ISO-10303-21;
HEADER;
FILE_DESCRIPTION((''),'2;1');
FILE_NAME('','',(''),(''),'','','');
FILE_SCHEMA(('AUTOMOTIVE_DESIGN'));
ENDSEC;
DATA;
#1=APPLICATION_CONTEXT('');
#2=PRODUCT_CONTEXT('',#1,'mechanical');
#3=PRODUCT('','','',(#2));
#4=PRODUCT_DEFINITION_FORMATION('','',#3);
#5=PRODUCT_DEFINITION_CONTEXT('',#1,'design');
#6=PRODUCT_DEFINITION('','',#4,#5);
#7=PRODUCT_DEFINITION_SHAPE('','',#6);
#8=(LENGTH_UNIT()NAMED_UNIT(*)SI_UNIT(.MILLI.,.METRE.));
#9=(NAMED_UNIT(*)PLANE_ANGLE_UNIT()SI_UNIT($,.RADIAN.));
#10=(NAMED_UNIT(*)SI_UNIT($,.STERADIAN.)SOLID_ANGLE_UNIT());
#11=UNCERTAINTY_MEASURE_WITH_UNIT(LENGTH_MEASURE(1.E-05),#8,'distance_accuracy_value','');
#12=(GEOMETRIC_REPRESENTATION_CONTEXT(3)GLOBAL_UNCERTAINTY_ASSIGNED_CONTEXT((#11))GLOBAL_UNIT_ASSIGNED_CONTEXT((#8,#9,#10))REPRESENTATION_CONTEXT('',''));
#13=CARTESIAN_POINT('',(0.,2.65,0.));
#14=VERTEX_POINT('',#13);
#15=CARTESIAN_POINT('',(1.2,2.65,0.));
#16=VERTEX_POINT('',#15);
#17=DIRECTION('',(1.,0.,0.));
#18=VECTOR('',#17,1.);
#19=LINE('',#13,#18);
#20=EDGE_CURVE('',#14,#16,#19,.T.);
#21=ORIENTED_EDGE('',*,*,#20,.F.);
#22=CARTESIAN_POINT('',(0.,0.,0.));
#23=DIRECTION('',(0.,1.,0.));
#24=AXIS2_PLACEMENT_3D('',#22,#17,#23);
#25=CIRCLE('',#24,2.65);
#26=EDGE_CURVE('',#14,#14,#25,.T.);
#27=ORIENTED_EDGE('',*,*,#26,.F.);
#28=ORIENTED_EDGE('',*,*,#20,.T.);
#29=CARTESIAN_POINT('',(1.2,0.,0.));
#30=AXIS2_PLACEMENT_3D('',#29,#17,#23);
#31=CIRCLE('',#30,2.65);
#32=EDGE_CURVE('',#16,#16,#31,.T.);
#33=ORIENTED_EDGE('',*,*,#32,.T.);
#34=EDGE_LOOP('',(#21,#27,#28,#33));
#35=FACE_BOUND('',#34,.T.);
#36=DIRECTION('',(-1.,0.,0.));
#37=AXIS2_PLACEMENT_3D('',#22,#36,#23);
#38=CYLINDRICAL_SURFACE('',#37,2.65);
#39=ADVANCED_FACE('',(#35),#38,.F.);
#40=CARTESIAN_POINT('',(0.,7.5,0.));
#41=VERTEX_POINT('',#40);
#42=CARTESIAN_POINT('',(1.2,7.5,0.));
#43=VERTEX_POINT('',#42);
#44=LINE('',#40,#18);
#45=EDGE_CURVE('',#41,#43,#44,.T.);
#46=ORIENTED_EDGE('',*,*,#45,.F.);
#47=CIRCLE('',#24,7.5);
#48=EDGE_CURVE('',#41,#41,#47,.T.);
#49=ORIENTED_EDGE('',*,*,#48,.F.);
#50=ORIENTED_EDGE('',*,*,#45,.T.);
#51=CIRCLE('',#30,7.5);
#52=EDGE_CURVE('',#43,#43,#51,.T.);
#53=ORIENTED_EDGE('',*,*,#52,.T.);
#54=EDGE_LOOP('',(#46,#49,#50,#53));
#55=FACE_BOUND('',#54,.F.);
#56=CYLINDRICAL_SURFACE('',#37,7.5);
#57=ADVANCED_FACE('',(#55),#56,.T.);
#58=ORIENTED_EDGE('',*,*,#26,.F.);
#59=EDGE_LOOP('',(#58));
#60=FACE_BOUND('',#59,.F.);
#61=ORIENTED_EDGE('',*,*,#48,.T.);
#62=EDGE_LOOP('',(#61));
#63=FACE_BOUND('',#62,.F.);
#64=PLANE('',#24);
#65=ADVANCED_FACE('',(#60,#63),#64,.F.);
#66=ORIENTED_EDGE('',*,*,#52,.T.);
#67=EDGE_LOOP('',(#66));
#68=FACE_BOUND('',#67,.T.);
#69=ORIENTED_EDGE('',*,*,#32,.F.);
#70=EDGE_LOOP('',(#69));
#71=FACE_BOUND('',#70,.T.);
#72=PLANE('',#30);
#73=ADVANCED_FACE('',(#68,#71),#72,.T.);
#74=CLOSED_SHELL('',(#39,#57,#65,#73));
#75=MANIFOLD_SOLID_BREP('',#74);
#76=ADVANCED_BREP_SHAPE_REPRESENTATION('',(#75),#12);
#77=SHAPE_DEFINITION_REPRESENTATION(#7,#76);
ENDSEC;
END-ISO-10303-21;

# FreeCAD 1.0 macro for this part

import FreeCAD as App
import Part
import Sketcher

V = App.Vector
Q = App.Units.Quantity

doc = App.newDocument("Part")
body = doc.addObject("PartDesign::Body", "Body")

sketch1 = doc.addObject("Sketcher::SketchObject", "Sketch")
body.addObject(sketch1)
sketch1.AttachmentSupport = (doc.YZ_Plane, [""])
sketch1.MapMode = "FlatFace"
sketch1.addGeometry(Part.Circle(V(0, 0, 0), V(0, 0, 1), 7.5), False)
sketch1.addGeometry(Part.Circle(V(0, 0, 0), V(0, 0, 1), 2.6), False)
sketch1.addConstraint(Sketcher.Constraint("Coincident", 0, 3, -1, 1))
sketch1.addConstraint(Sketcher.Constraint("Coincident", 1, 3, -1, 1))
sketch1.addConstraint(Sketcher.Constraint("Diameter", 0, Q("15 mm")))
sketch1.addConstraint(Sketcher.Constraint("Diameter", 1, Q("5.3 mm")))
pad1 = doc.addObject("PartDesign::Pad", "Pad")
body.addObject(pad1)
pad1.Profile = sketch1
pad1.Length = 1.2

doc.recompute()
